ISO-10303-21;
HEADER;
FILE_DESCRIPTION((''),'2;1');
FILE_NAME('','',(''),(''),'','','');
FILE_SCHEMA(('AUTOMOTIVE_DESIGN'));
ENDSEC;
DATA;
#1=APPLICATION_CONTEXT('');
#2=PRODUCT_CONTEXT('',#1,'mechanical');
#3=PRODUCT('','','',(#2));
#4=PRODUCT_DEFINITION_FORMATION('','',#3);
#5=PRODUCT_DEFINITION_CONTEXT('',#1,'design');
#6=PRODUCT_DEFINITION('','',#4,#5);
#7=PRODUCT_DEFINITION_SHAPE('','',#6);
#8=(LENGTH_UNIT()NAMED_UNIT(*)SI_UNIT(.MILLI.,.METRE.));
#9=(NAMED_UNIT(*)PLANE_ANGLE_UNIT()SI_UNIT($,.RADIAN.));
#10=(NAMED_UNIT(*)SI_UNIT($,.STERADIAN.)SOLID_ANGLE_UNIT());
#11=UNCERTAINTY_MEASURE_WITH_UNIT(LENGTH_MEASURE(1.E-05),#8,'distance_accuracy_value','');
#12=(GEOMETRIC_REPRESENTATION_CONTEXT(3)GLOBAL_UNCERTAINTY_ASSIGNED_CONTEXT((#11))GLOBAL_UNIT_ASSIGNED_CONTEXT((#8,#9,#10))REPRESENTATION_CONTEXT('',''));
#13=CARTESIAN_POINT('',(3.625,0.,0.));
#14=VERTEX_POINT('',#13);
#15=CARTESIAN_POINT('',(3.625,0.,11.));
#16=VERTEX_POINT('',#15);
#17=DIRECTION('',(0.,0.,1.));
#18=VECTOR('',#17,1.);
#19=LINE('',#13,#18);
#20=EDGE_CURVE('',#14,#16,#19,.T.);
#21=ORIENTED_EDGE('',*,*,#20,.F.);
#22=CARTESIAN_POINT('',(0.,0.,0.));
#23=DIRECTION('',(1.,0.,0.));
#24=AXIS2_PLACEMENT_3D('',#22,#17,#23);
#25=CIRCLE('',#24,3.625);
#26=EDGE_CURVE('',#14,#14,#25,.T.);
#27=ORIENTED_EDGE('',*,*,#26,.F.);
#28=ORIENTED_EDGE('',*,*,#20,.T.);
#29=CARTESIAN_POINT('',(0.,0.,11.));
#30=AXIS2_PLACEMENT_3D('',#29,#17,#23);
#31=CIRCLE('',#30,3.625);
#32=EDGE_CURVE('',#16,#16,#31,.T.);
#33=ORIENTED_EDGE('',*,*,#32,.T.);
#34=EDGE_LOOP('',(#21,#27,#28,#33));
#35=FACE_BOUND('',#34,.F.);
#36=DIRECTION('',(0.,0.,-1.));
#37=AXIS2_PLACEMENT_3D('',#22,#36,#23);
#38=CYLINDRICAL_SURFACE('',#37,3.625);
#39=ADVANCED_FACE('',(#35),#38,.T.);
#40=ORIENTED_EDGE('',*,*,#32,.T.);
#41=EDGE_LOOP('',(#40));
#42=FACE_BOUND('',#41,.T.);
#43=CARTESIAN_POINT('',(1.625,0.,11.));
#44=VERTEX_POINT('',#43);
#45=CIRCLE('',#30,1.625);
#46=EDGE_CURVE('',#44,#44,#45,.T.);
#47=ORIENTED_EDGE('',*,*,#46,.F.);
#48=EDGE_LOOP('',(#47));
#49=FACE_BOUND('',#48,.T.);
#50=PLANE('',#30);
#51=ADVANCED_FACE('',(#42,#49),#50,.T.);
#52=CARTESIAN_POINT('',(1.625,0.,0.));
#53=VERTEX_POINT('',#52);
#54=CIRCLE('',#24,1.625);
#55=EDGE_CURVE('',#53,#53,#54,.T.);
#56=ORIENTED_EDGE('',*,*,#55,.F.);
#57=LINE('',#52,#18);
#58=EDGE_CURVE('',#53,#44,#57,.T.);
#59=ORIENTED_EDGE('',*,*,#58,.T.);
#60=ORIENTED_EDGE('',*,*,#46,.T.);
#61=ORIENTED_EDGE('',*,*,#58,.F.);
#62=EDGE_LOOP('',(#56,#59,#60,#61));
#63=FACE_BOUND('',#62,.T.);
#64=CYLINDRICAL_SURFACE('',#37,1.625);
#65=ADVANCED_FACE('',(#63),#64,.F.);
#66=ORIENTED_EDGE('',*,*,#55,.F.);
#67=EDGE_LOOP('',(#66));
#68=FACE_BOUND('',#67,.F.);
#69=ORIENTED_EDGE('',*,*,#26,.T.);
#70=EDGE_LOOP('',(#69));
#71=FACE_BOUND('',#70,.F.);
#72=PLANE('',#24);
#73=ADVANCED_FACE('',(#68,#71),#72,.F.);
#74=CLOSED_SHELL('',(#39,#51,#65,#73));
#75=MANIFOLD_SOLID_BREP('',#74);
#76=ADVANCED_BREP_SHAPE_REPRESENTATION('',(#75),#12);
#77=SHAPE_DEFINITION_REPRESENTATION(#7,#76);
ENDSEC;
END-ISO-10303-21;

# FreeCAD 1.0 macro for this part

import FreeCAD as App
import Part
import Sketcher
Q = App.Units.Quantity

doc = App.newDocument("Part")
body = doc.addObject("PartDesign::Body", "Body")

# Sketch on XY plane
sketch1 = body.newObject("Sketcher::SketchObject", "Sketch")
sketch1.AttachmentSupport = (doc.getObject("XY_Plane"), [""])
sketch1.MapMode = "FlatFace"
sketch1.addGeometry(Part.Circle(App.Vector(0, 0, 0), App.Vector(0, 0, 1), 3.625), False)
sketch1.addGeometry(Part.Circle(App.Vector(0, 0, 0), App.Vector(0, 0, 1), 1.625), False)
sketch1.addConstraint(Sketcher.Constraint("Coincident", 0, 3, -1, 1))
sketch1.addConstraint(Sketcher.Constraint("Coincident", 1, 3, -1, 1))
sketch1.addConstraint(Sketcher.Constraint("Diameter", 0, Q("7.25 mm")))
sketch1.addConstraint(Sketcher.Constraint("Diameter", 1, Q("3.25 mm")))
pad1 = body.newObject("PartDesign::Pad", "Pad")
pad1.Profile = sketch1
pad1.Length = 11

doc.recompute()
